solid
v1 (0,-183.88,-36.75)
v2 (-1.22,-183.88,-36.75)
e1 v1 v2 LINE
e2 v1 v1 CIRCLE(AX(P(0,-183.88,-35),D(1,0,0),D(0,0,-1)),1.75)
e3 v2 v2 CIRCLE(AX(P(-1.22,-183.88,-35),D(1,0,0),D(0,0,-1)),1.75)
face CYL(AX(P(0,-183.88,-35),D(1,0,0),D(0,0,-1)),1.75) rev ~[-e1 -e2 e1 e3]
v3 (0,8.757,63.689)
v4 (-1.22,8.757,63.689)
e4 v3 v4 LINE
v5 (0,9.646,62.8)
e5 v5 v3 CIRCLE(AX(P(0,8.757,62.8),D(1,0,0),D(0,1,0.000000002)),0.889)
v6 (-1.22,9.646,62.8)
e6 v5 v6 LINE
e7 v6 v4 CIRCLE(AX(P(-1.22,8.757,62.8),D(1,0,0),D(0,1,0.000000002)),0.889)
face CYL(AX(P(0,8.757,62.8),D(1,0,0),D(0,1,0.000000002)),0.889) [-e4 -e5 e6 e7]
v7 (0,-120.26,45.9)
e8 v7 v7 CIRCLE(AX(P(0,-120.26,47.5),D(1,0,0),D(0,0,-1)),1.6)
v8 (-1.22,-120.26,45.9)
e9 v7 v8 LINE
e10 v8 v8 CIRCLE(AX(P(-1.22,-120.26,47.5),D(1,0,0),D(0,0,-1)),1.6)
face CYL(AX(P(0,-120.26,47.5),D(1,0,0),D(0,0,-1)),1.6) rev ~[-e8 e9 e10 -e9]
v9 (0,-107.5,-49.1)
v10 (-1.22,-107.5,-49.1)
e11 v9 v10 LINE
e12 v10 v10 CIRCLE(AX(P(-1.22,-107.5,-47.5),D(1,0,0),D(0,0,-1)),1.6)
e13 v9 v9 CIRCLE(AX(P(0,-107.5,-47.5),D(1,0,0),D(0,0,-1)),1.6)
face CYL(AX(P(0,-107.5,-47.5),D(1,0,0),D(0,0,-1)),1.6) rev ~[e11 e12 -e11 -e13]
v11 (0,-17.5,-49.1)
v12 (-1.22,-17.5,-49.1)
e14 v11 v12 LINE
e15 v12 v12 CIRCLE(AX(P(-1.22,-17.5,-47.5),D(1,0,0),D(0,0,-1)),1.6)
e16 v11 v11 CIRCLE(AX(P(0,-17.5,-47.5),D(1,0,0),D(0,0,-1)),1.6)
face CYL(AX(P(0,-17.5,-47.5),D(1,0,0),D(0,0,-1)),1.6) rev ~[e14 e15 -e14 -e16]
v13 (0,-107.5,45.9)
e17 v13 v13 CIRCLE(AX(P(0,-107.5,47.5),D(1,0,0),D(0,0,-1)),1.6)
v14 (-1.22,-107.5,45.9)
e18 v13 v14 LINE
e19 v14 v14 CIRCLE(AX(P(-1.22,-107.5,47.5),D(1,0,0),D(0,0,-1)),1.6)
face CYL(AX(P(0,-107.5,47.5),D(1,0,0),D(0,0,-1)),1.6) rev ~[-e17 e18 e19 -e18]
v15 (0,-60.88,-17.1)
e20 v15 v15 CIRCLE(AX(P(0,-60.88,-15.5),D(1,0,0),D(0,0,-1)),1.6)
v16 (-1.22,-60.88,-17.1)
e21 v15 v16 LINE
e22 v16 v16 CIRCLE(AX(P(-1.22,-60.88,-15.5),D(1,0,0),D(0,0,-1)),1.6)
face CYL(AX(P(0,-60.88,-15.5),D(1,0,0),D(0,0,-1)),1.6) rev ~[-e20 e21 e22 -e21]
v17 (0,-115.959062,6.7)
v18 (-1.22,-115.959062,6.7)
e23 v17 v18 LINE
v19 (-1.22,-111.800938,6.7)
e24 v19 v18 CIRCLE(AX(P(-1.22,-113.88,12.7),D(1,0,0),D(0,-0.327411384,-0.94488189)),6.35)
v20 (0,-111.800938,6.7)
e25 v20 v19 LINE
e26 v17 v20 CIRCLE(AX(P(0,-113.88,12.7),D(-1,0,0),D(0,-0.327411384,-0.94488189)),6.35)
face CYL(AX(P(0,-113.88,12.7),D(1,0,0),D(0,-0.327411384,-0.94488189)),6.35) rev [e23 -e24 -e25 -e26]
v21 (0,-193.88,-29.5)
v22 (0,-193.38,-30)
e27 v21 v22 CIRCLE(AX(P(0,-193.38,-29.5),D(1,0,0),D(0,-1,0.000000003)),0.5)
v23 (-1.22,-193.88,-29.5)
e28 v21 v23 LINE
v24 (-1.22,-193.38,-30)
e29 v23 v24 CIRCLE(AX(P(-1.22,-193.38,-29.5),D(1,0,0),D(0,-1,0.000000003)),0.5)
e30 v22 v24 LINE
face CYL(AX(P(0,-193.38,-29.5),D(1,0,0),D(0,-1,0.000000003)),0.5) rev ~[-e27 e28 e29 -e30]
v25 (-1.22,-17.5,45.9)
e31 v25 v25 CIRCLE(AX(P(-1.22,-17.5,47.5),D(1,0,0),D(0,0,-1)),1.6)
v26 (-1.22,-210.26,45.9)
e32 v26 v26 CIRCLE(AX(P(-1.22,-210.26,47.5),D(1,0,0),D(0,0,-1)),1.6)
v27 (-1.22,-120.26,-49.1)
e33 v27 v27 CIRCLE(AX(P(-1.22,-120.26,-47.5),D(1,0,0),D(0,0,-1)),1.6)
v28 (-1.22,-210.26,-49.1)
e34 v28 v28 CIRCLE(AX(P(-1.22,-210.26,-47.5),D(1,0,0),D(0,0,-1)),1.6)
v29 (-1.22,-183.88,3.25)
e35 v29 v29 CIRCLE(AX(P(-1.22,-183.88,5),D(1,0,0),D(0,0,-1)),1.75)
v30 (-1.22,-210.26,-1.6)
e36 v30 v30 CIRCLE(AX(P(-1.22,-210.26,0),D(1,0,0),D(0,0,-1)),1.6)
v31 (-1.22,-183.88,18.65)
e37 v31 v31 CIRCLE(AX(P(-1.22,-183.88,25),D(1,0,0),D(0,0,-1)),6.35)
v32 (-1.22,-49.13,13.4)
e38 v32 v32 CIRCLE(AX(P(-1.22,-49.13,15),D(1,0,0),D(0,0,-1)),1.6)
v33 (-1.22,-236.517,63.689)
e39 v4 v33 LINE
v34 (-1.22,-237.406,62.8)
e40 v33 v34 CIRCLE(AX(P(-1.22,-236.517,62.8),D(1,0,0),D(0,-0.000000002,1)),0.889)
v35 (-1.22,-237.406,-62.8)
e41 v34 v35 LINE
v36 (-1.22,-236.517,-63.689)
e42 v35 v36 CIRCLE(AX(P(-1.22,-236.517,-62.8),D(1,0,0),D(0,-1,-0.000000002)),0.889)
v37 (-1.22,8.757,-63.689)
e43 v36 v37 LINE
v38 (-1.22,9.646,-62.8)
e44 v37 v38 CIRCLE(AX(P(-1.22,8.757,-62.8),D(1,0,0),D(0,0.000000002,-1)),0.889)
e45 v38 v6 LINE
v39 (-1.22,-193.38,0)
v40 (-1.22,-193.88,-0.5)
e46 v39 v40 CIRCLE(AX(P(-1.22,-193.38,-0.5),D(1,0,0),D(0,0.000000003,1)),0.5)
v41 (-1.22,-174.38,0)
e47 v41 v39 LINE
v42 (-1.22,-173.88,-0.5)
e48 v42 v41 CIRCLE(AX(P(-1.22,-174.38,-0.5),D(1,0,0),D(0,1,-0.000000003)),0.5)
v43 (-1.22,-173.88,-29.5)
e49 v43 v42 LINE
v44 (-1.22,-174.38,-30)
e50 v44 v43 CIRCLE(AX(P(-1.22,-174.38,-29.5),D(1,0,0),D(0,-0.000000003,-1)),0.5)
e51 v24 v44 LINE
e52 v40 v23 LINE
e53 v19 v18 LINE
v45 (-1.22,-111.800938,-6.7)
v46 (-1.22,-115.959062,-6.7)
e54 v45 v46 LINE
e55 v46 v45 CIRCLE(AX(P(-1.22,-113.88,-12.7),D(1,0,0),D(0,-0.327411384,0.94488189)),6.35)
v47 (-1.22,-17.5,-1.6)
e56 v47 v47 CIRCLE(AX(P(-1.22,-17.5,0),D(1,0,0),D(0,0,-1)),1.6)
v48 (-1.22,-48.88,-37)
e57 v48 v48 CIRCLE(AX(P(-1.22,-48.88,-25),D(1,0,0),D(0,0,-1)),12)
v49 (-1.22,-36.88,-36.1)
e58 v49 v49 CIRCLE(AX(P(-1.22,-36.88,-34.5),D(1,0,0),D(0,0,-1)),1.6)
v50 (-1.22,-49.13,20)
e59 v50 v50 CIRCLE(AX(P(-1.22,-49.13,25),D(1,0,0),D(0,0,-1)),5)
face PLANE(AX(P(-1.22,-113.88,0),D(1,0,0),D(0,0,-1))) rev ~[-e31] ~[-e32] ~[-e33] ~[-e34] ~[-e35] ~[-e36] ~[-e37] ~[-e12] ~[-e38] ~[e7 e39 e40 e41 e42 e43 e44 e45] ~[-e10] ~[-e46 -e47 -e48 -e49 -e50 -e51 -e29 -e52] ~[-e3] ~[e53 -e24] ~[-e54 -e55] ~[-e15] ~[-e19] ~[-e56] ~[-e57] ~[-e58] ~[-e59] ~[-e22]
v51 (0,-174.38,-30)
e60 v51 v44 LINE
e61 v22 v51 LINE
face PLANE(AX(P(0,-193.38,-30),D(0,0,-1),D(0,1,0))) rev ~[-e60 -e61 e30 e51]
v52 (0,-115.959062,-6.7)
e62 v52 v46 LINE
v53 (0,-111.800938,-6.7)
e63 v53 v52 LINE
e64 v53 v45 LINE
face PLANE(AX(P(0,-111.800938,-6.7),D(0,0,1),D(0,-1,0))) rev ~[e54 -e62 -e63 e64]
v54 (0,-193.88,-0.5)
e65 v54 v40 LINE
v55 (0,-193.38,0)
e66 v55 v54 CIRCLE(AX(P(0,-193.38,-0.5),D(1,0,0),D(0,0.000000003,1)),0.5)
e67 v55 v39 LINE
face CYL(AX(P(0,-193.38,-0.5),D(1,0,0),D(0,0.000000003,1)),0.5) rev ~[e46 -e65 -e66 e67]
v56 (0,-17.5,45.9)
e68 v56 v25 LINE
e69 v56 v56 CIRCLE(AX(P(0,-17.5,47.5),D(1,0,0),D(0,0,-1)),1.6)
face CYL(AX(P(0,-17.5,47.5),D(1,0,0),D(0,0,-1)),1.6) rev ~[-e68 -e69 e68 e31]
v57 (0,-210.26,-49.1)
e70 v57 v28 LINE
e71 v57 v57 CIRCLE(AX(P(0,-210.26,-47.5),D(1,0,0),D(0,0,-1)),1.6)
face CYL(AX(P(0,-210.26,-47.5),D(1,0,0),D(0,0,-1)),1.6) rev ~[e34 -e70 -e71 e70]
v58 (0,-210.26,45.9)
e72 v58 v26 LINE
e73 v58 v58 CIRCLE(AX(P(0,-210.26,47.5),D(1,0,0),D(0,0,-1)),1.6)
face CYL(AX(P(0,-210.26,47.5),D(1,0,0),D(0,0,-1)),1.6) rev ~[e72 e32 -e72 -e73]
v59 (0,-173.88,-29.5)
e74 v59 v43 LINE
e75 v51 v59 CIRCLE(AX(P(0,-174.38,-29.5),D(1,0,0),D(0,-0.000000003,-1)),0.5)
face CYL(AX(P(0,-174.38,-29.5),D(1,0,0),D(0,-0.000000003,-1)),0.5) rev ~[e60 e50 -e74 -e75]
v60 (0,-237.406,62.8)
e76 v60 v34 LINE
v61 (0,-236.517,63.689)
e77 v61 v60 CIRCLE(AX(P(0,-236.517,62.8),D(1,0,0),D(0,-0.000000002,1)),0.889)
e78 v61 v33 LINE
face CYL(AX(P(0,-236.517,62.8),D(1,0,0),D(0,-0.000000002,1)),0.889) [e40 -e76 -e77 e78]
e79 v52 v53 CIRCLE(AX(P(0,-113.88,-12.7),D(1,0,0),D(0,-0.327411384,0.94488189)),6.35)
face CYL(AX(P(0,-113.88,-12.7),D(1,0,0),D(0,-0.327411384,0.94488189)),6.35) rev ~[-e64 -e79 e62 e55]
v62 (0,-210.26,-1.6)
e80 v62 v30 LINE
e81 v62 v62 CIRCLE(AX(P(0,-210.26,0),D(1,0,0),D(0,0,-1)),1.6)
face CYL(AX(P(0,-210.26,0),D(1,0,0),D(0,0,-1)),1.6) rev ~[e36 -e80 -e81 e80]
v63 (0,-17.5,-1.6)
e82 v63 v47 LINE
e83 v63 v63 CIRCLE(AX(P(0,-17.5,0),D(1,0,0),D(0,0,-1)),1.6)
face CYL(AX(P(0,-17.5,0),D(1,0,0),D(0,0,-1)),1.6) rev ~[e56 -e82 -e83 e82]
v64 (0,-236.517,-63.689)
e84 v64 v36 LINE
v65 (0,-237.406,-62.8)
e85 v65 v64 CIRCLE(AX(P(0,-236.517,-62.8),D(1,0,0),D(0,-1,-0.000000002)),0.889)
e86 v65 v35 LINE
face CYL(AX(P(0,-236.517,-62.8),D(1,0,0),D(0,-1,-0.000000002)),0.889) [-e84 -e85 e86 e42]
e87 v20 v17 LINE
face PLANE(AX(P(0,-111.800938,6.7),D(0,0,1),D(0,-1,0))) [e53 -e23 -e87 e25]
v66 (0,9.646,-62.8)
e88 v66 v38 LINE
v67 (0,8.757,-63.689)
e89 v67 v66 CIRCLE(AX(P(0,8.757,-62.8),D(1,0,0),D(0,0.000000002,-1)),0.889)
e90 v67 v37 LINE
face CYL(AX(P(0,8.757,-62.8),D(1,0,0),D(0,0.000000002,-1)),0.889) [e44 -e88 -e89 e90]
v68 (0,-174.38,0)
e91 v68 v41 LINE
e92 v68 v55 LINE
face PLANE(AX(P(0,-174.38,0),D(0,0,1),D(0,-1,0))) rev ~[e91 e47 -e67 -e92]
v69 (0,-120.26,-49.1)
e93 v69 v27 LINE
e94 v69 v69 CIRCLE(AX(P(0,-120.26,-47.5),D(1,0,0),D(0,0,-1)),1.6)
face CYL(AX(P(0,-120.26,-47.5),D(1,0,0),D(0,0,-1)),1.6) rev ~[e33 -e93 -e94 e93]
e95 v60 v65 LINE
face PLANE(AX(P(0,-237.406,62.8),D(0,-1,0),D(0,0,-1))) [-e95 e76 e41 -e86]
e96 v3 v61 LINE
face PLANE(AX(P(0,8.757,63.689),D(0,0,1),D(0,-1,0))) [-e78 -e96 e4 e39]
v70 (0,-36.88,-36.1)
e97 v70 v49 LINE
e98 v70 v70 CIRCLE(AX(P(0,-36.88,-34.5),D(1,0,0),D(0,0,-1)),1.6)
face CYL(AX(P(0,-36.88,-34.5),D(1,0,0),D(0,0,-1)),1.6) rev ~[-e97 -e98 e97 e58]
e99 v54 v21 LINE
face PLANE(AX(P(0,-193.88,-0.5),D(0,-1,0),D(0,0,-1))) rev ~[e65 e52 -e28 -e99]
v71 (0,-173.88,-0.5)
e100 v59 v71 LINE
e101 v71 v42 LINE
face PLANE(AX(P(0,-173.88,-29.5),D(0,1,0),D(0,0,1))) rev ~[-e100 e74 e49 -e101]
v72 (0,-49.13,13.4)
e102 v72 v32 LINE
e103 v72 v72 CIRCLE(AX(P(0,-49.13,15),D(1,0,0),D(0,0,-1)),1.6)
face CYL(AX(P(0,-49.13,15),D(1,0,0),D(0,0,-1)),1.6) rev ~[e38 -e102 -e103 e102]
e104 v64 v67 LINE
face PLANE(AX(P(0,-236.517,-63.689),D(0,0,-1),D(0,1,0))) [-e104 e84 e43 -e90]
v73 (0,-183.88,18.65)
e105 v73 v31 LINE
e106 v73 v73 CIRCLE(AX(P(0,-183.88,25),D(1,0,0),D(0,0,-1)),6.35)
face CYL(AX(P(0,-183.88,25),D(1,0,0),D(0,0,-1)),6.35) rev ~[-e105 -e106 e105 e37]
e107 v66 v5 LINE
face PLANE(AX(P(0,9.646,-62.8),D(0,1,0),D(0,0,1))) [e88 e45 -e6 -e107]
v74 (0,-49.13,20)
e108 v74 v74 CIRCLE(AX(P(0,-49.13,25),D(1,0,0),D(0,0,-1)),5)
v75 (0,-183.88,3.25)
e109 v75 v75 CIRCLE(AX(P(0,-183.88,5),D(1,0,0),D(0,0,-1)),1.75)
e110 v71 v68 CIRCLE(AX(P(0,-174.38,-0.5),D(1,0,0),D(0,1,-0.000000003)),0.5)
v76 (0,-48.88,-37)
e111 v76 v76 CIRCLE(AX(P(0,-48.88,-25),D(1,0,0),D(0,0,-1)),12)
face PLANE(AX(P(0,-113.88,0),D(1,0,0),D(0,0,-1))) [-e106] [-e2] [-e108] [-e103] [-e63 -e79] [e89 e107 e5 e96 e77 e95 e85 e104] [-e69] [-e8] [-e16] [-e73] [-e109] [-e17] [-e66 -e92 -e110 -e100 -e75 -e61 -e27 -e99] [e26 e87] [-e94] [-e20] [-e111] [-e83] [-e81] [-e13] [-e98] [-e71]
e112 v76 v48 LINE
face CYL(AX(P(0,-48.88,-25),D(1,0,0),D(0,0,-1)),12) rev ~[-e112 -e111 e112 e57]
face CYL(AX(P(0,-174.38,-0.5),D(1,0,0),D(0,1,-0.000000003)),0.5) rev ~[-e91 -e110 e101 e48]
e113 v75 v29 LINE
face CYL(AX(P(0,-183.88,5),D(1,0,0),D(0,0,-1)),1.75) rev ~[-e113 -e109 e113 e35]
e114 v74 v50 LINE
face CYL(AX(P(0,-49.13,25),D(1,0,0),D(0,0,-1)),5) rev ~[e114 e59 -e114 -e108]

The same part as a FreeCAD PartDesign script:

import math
import FreeCAD as App
import Part
import Sketcher

V = App.Vector

doc = App.newDocument("Part")
body = doc.addObject("PartDesign::Body", "Body")

# Sketch on YZ plane
sketch1 = doc.addObject("Sketcher::SketchObject", "Sketch")
body.addObject(sketch1)
sketch1.AttachmentSupport = (doc.YZ_Plane, [""])
sketch1.MapMode = "FlatFace"
sketch1.addGeometry(Part.LineSegment(V(9.646, -62.8, 0), V(9.646, 62.8, 0)), False)
sketch1.addGeometry(Part.ArcOfCircle(Part.Circle(V(8.757, 62.8, 0), V(0, 0, 1), 0.889), math.radians(0), math.radians(90)), False)
sketch1.addGeometry(Part.LineSegment(V(8.757, 63.689, 0), V(-236.517, 63.689, 0)), False)
sketch1.addGeometry(Part.ArcOfCircle(Part.Circle(V(-236.517, 62.8, 0), V(0, 0, 1), 0.889), math.radians(90), math.radians(180)), False)
sketch1.addGeometry(Part.LineSegment(V(-237.406, 62.8, 0), V(-237.406, -62.8, 0)), False)
sketch1.addGeometry(Part.ArcOfCircle(Part.Circle(V(-236.517, -62.8, 0), V(0, 0, 1), 0.889), math.radians(-180), math.radians(-90)), False)
sketch1.addGeometry(Part.LineSegment(V(-236.517, -63.689, 0), V(8.757, -63.689, 0)), False)
sketch1.addGeometry(Part.ArcOfCircle(Part.Circle(V(8.757, -62.8, 0), V(0, 0, 1), 0.889), math.radians(-90), math.radians(0)), False)
sketch1.addConstraint(Sketcher.Constraint("Tangent", 0, 2, 1, 1))
sketch1.addConstraint(Sketcher.Constraint("Tangent", 1, 2, 2, 1))
sketch1.addConstraint(Sketcher.Constraint("Tangent", 2, 2, 3, 1))
sketch1.addConstraint(Sketcher.Constraint("Tangent", 3, 2, 4, 1))
sketch1.addConstraint(Sketcher.Constraint("Tangent", 4, 2, 5, 1))
sketch1.addConstraint(Sketcher.Constraint("Tangent", 5, 2, 6, 1))
sketch1.addConstraint(Sketcher.Constraint("Tangent", 6, 2, 7, 1))
sketch1.addConstraint(Sketcher.Constraint("Tangent", 7, 2, 0, 1))
sketch1.addConstraint(Sketcher.Constraint("Vertical", 0))
sketch1.addConstraint(Sketcher.Constraint("Horizontal", 2))
sketch1.addConstraint(Sketcher.Constraint("Vertical", 4))
sketch1.addConstraint(Sketcher.Constraint("Horizontal", 6))
sketch1.addConstraint(Sketcher.Constraint("Equal", 1, 3))
sketch1.addConstraint(Sketcher.Constraint("Equal", 3, 5))
sketch1.addConstraint(Sketcher.Constraint("Equal", 5, 7))
sketch1.addConstraint(Sketcher.Constraint("DistanceY", 0, 1, 0, 2, 125.6))
sketch1.addConstraint(Sketcher.Constraint("Radius", 1, 0.889))
sketch1.addConstraint(Sketcher.Constraint("DistanceY", -1, 1, 1, 3, 62.8))
sketch1.addConstraint(Sketcher.Constraint("DistanceX", 2, 2, 2, 1, 245.274))
sketch1.addConstraint(Sketcher.Constraint("DistanceX", -1, 1, 1, 3, 8.757))
pad1 = doc.addObject("PartDesign::Pad", "Pad")
body.addObject(pad1)
pad1.Profile = sketch1
pad1.Length = 1.22
pad1.Reversed = True

# Sketch on YZ plane
sketch2 = doc.addObject("Sketcher::SketchObject", "Sketch001")
body.addObject(sketch2)
sketch2.AttachmentSupport = (doc.YZ_Plane, [""])
sketch2.MapMode = "FlatFace"
sketch2.addGeometry(Part.Circle(V(-107.5, -47.5, 0), V(0, 0, 1), 1.6), False)
sketch2.addGeometry(Part.Circle(V(-107.5, 47.5, 0), V(0, 0, 1), 1.6), False)
sketch2.addGeometry(Part.Circle(V(-17.5, -47.5, 0), V(0, 0, 1), 1.6), False)
sketch2.addGeometry(Part.Circle(V(-17.5, 0, 0), V(0, 0, 1), 1.6), False)
sketch2.addGeometry(Part.Circle(V(-17.5, 47.5, 0), V(0, 0, 1), 1.6), False)
sketch2.addGeometry(Part.Circle(V(-210.26, 47.5, 0), V(0, 0, 1), 1.6), False)
sketch2.addGeometry(Part.Circle(V(-210.26, 0, 0), V(0, 0, 1), 1.6), False)
sketch2.addGeometry(Part.Circle(V(-210.26, -47.5, 0), V(0, 0, 1), 1.6), False)
sketch2.addGeometry(Part.Circle(V(-120.26, 47.5, 0), V(0, 0, 1), 1.6), False)
sketch2.addGeometry(Part.Circle(V(-120.26, -47.5, 0), V(0, 0, 1), 1.6), False)
sketch2.addConstraint(Sketcher.Constraint("Equal", 0, 1))
sketch2.addConstraint(Sketcher.Constraint("Equal", 1, 2))
sketch2.addConstraint(Sketcher.Constraint("Equal", 2, 3))
sketch2.addConstraint(Sketcher.Constraint("Equal", 3, 4))
sketch2.addConstraint(Sketcher.Constraint("Equal", 4, 5))
sketch2.addConstraint(Sketcher.Constraint("Equal", 5, 6))
sketch2.addConstraint(Sketcher.Constraint("Equal", 6, 7))
sketch2.addConstraint(Sketcher.Constraint("Equal", 7, 8))
sketch2.addConstraint(Sketcher.Constraint("Equal", 8, 9))
sketch2.addConstraint(Sketcher.Constraint("Symmetric", 0, 3, 1, 3, -1))
sketch2.addConstraint(Sketcher.Constraint("Symmetric", 2, 3, 4, 3, -1))
sketch2.addConstraint(Sketcher.Constraint("Symmetric", 5, 3, 7, 3, -1))
sketch2.addConstraint(Sketcher.Constraint("Symmetric", 8, 3, 9, 3, -1))
sketch2.addConstraint(Sketcher.Constraint("PointOnObject", 3, 3, -1))
sketch2.addConstraint(Sketcher.Constraint("PointOnObject", 6, 3, -1))
sketch2.addConstraint(Sketcher.Constraint("Horizontal", 0, 3, 2, 3))
sketch2.addConstraint(Sketcher.Constraint("Horizontal", 4, 3, 5, 3))
sketch2.addConstraint(Sketcher.Constraint("Horizontal", 5, 3, 8, 3))
sketch2.addConstraint(Sketcher.Constraint("Vertical", 2, 3, 3, 3))
sketch2.addConstraint(Sketcher.Constraint("Vertical", 5, 3, 6, 3))
sketch2.addConstraint(Sketcher.Constraint("Diameter", 0, 3.2))
sketch2.addConstraint(Sketcher.Constraint("DistanceY", 0, 3, 1, 3, 95.0))
sketch2.addConstraint(Sketcher.Constraint("DistanceX", 0, 3, 2, 3, 90.0))
sketch2.addConstraint(Sketcher.Constraint("DistanceX", 5, 3, 8, 3, 90.0))
sketch2.addConstraint(Sketcher.Constraint("DistanceX", 0, 3, -1, 1, 107.5))
sketch2.addConstraint(Sketcher.Constraint("DistanceX", 5, 3, -1, 1, 210.26))
pocket1 = doc.addObject("PartDesign::Pocket", "Pocket")
body.addObject(pocket1)
pocket1.Profile = sketch2
pocket1.Type = "ThroughAll"

# Sketch on YZ plane
sketch3 = doc.addObject("Sketcher::SketchObject", "Sketch002")
body.addObject(sketch3)
sketch3.AttachmentSupport = (doc.YZ_Plane, [""])
sketch3.MapMode = "FlatFace"
sketch3.addGeometry(Part.Circle(V(-48.88, -25, 0), V(0, 0, 1), 12), False)
sketch3.addGeometry(Part.Circle(V(-49.13, 25, 0), V(0, 0, 1), 5), False)
sketch3.addGeometry(Part.Circle(V(-183.88, -35, 0), V(0, 0, 1), 1.75), False)
sketch3.addGeometry(Part.Circle(V(-183.88, 5, 0), V(0, 0, 1), 1.75), False)
sketch3.addGeometry(Part.Circle(V(-36.88, -34.5, 0), V(0, 0, 1), 1.6), False)
sketch3.addGeometry(Part.Circle(V(-60.88, -15.5, 0), V(0, 0, 1), 1.6), False)
sketch3.addGeometry(Part.Circle(V(-49.13, 15, 0), V(0, 0, 1), 1.6), False)
sketch3.addGeometry(Part.Circle(V(-183.88, 25, 0), V(0, 0, 1), 6.35), False)
sketch3.addGeometry(Part.LineSegment(V(-193.88, -0.5, 0), V(-193.88, -29.5, 0)), False)
sketch3.addGeometry(Part.ArcOfCircle(Part.Circle(V(-193.38, -29.5, 0), V(0, 0, 1), 0.5), math.radians(180), math.radians(270)), False)
sketch3.addGeometry(Part.LineSegment(V(-193.38, -30, 0), V(-174.38, -30, 0)), False)
sketch3.addGeometry(Part.ArcOfCircle(Part.Circle(V(-174.38, -29.5, 0), V(0, 0, 1), 0.5), math.radians(-90), math.radians(0)), False)
sketch3.addGeometry(Part.LineSegment(V(-173.88, -29.5, 0), V(-173.88, -0.5, 0)), False)
sketch3.addGeometry(Part.ArcOfCircle(Part.Circle(V(-174.38, -0.5, 0), V(0, 0, 1), 0.5), math.radians(0), math.radians(90)), False)
sketch3.addGeometry(Part.LineSegment(V(-174.38, 0, 0), V(-193.38, 0, 0)), False)
sketch3.addGeometry(Part.ArcOfCircle(Part.Circle(V(-193.38, -0.5, 0), V(0, 0, 1), 0.5), math.radians(90), math.radians(180)), False)
sketch3.addGeometry(Part.LineSegment(V(-111.800938, -6.7, 0), V(-115.959062, -6.7, 0)), False)
sketch3.addGeometry(Part.ArcOfCircle(Part.Circle(V(-113.88, -12.7, 0), V(0, 0, 1), 6.35), math.radians(109.111732), math.radians(430.888268)), False)
sketch3.addGeometry(Part.LineSegment(V(-115.959062, 6.7, 0), V(-111.800938, 6.7, 0)), False)
sketch3.addGeometry(Part.ArcOfCircle(Part.Circle(V(-113.88, 12.7, 0), V(0, 0, 1), 6.35), math.radians(-70.888268), math.radians(250.888268)), False)
sketch3.addConstraint(Sketcher.Constraint("Tangent", 8, 2, 9, 1))
sketch3.addConstraint(Sketcher.Constraint("Tangent", 9, 2, 10, 1))
sketch3.addConstraint(Sketcher.Constraint("Tangent", 10, 2, 11, 1))
sketch3.addConstraint(Sketcher.Constraint("Tangent", 11, 2, 12, 1))
sketch3.addConstraint(Sketcher.Constraint("Tangent", 12, 2, 13, 1))
sketch3.addConstraint(Sketcher.Constraint("Tangent", 13, 2, 14, 1))
sketch3.addConstraint(Sketcher.Constraint("Tangent", 14, 2, 15, 1))
sketch3.addConstraint(Sketcher.Constraint("Tangent", 15, 2, 8, 1))
sketch3.addConstraint(Sketcher.Constraint("Coincident", 16, 1, 17, 2))
sketch3.addConstraint(Sketcher.Constraint("Coincident", 17, 1, 16, 2))
sketch3.addConstraint(Sketcher.Constraint("Coincident", 18, 1, 19, 2))
sketch3.addConstraint(Sketcher.Constraint("Coincident", 19, 1, 18, 2))
sketch3.addConstraint(Sketcher.Constraint("Vertical", 8))
sketch3.addConstraint(Sketcher.Constraint("Horizontal", 10))
sketch3.addConstraint(Sketcher.Constraint("Vertical", 12))
sketch3.addConstraint(Sketcher.Constraint("Horizontal", 14))
sketch3.addConstraint(Sketcher.Constraint("Horizontal", 16))
sketch3.addConstraint(Sketcher.Constraint("Horizontal", 18))
sketch3.addConstraint(Sketcher.Constraint("Equal", 2, 3))
sketch3.addConstraint(Sketcher.Constraint("Equal", 4, 5))
sketch3.addConstraint(Sketcher.Constraint("Equal", 5, 6))
sketch3.addConstraint(Sketcher.Constraint("Equal", 9, 11))
sketch3.addConstraint(Sketcher.Constraint("Equal", 11, 13))
sketch3.addConstraint(Sketcher.Constraint("Equal", 13, 15))
sketch3.addConstraint(Sketcher.Constraint("Equal", 7, 17))
sketch3.addConstraint(Sketcher.Constraint("Equal", 17, 19))
sketch3.addConstraint(Sketcher.Constraint("Symmetric", 17, 3, 19, 3, -1))
sketch3.addConstraint(Sketcher.Constraint("PointOnObject", 13, 2, -1))
sketch3.addConstraint(Sketcher.Constraint("Horizontal", 1, 3, 7, 3))
sketch3.addConstraint(Sketcher.Constraint("Vertical", 2, 3, 3, 3))
sketch3.addConstraint(Sketcher.Constraint("Vertical", 1, 3, 6, 3))
sketch3.addConstraint(Sketcher.Constraint("Vertical", 3, 3, 7, 3))
sketch3.addConstraint(Sketcher.Constraint("Vertical", 17, 1, 18, 1))
sketch3.addConstraint(Sketcher.Constraint("Diameter", 0, 24.0))
sketch3.addConstraint(Sketcher.Constraint("Diameter", 1, 10.0))
sketch3.addConstraint(Sketcher.Constraint("Diameter", 2, 3.5))
sketch3.addConstraint(Sketcher.Constraint("Diameter", 4, 3.2))
sketch3.addConstraint(Sketcher.Constraint("Diameter", 7, 12.7))
sketch3.addConstraint(Sketcher.Constraint("Radius", 9, 0.5))
sketch3.addConstraint(Sketcher.Constraint("DistanceX", 10, 1, 10, 2, 19.0))
sketch3.addConstraint(Sketcher.Constraint("DistanceY", 8, 2, 8, 1, 29.0))
sketch3.addConstraint(Sketcher.Constraint("DistanceY", 0, 3, -1, 1, 25.0))
sketch3.addConstraint(Sketcher.Constraint("DistanceY", -1, 1, 1, 3, 25.0))
sketch3.addConstraint(Sketcher.Constraint("DistanceY", 2, 3, -1, 1, 35.0))
sketch3.addConstraint(Sketcher.Constraint("DistanceY", -1, 1, 3, 3, 5.0))
sketch3.addConstraint(Sketcher.Constraint("DistanceY", -1, 1, 6, 3, 15.0))
sketch3.addConstraint(Sketcher.Constraint("DistanceX", 2, 3, 0, 3, 135.0))
sketch3.addConstraint(Sketcher.Constraint("DistanceX", 0, 3, 4, 3, 12.0))
sketch3.addConstraint(Sketcher.Constraint("DistanceX", 5, 3, 0, 3, 12.0))
sketch3.addConstraint(Sketcher.Constraint("DistanceY", 4, 3, 5, 3, 19.0))
sketch3.addConstraint(Sketcher.Constraint("DistanceY", 9, 3, 5, 3, 14.0))
sketch3.addConstraint(Sketcher.Constraint("DistanceX", 17, 3, 5, 3, 53.0))
sketch3.addConstraint(Sketcher.Constraint("DistanceX", 8, 2, 2, 3, 10.0))
sketch3.addConstraint(Sketcher.Constraint("DistanceY", 17, 3, 16, 1, 6.0))
sketch3.addConstraint(Sketcher.Constraint("DistanceY", 17, 3, -1, 1, 12.7))
sketch3.addConstraint(Sketcher.Constraint("DistanceX", 0, 3, -1, 1, 48.88))
sketch3.addConstraint(Sketcher.Constraint("DistanceX", 1, 3, -1, 1, 49.13))
pocket2 = doc.addObject("PartDesign::Pocket", "Pocket001")
body.addObject(pocket2)
pocket2.Profile = sketch3
pocket2.Type = "ThroughAll"

doc.recompute()
